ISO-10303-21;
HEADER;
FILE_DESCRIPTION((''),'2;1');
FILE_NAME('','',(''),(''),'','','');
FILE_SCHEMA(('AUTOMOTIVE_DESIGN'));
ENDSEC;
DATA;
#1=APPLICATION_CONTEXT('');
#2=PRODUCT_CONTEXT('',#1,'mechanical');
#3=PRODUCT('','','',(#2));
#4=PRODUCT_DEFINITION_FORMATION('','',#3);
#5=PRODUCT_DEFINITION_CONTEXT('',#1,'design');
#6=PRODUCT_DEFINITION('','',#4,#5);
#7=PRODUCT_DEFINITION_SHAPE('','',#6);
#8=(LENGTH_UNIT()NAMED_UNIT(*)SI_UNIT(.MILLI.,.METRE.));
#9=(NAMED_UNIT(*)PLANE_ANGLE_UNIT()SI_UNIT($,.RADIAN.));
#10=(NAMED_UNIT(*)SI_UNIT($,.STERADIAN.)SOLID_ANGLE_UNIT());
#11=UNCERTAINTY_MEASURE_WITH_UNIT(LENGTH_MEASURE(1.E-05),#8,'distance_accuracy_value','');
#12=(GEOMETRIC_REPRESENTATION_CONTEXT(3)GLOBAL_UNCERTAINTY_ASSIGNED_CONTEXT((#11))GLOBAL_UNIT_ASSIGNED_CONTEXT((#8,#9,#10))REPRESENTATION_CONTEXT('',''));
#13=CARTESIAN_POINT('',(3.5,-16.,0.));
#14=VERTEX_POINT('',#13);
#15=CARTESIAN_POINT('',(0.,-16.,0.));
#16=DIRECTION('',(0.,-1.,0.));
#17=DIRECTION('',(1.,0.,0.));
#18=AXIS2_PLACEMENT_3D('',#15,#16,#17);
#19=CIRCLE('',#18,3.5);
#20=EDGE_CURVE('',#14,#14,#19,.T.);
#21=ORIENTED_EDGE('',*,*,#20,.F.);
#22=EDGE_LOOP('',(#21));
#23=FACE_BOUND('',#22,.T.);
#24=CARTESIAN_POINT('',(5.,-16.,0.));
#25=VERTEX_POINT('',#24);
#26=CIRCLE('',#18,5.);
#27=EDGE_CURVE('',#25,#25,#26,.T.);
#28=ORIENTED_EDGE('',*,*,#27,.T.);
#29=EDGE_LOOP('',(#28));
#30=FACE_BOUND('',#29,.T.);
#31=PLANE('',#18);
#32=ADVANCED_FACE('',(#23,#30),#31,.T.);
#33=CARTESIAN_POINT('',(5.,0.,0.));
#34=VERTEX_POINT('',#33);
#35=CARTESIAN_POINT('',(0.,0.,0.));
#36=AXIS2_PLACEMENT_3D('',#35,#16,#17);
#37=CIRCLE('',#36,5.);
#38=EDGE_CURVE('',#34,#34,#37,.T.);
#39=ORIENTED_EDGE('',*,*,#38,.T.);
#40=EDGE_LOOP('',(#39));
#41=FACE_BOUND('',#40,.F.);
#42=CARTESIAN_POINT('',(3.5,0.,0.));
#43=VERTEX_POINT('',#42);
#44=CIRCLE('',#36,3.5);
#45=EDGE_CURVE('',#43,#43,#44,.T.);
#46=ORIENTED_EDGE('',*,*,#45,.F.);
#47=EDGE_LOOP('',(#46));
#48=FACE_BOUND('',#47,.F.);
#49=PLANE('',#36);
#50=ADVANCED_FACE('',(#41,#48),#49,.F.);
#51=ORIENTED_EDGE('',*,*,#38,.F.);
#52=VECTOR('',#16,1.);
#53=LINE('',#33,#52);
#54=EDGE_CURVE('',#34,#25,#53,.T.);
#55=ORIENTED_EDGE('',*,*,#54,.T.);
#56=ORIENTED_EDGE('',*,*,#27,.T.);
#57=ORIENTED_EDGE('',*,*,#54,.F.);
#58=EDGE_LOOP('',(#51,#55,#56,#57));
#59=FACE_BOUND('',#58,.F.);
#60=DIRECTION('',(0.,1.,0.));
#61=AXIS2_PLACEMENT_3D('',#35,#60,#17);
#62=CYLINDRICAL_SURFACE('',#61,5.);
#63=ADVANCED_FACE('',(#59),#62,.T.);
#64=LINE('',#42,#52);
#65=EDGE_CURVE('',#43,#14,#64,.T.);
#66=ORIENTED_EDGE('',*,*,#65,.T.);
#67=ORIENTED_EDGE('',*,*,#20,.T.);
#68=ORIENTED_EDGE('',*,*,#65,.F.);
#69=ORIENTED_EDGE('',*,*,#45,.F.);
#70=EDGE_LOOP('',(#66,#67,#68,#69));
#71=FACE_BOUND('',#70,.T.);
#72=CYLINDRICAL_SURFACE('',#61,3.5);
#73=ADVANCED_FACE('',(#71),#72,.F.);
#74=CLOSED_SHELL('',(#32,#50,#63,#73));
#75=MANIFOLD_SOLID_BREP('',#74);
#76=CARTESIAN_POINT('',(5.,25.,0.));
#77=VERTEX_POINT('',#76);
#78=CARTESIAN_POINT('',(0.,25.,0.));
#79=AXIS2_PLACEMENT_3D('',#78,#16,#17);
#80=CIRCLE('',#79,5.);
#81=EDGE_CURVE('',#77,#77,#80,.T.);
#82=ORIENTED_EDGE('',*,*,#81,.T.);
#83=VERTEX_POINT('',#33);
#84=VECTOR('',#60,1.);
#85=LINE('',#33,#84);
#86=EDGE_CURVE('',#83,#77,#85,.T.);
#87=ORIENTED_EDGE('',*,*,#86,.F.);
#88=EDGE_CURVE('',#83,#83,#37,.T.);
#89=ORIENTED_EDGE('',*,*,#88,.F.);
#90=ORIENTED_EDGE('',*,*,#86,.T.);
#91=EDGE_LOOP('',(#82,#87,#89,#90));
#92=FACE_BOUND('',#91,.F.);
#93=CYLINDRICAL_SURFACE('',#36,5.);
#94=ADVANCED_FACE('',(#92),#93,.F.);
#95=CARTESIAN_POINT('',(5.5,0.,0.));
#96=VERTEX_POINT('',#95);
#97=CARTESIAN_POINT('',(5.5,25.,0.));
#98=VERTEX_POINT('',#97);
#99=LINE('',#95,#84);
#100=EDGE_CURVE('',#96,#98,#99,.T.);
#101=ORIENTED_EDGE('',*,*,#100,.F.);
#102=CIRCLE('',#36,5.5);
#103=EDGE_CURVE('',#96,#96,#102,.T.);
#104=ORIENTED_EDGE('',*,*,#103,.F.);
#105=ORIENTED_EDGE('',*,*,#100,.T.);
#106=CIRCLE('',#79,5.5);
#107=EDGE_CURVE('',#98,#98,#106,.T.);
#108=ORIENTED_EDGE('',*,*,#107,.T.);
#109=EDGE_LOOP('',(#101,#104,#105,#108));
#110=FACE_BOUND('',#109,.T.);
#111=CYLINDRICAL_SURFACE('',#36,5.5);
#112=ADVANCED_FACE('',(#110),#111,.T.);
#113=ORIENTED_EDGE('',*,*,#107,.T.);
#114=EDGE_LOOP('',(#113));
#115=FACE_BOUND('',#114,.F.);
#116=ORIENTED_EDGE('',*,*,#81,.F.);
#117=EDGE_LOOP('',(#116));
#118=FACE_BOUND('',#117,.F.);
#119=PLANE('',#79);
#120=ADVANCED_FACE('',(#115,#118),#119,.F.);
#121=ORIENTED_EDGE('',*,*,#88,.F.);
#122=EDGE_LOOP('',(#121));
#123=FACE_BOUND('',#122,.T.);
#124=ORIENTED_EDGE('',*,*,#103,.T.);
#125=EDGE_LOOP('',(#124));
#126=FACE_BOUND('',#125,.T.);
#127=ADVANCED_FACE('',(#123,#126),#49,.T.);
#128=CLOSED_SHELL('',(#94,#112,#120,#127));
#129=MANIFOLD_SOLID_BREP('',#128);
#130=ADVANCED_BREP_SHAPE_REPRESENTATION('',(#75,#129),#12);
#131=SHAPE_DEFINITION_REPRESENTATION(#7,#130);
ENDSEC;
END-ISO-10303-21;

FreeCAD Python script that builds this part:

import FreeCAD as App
import Part
import Sketcher

V = App.Vector

doc = App.newDocument("Part")
params = doc.addObject("Spreadsheet::Sheet", "Params")
for row, (alias, value) in enumerate([
    ("sketch1_diameter", "10 mm"),
    ("sketch1_diameter2", "7 mm"),
    ("pad1_length", "16 mm"),
    ("sketch2_diameter", "11 mm"),
    ("sketch2_diameter2", "10 mm"),
    ("pad2_length", "25 mm"),
], start=1):
    params.set(f"A{row}", alias)
    params.set(f"B{row}", "=" + value)
    params.setAlias(f"B{row}", alias)

body = doc.addObject("PartDesign::Body", "Body")

# Sketch on XZ plane
sketch1 = body.newObject("Sketcher::SketchObject", "Sketch")
sketch1.AttachmentSupport = (doc.getObject("XZ_Plane"), [""])
sketch1.MapMode = "FlatFace"
sketch1.addGeometry([
    Part.Circle(V(0, 0, 0), V(0, 0, 1), 5),
    Part.Circle(V(0, 0, 0), V(0, 0, 1), 3.5),
], False)
sketch1.addConstraint([
    Sketcher.Constraint("Coincident", 0, 3, -1, 1),
    Sketcher.Constraint("Coincident", 1, 3, -1, 1),
    Sketcher.Constraint("Diameter", 0, 10.0),
    Sketcher.Constraint("Diameter", 1, 7.0),
])
sketch1.setExpression("Constraints[2]", "Params.sketch1_diameter")
sketch1.setExpression("Constraints[3]", "Params.sketch1_diameter2")
pad1 = body.newObject("PartDesign::Pad", "Pad")
pad1.Profile = sketch1
pad1.setExpression("Length", "Params.pad1_length")
body2 = doc.addObject("PartDesign::Body", "Body001")

# Sketch on XZ plane
sketch2 = body2.newObject("Sketcher::SketchObject", "Sketch001")
sketch2.AttachmentSupport = (doc.getObject("XZ_Plane001"), [""])
sketch2.MapMode = "FlatFace"
sketch2.addGeometry([
    Part.Circle(V(0, 0, 0), V(0, 0, 1), 6),
    Part.Circle(V(0, 0, 0), V(0, 0, 1), 5),
], False)
sketch2.addConstraint([
    Sketcher.Constraint("Coincident", 0, 3, -1, 1),
    Sketcher.Constraint("Coincident", 1, 3, -1, 1),
    Sketcher.Constraint("Diameter", 0, 11.0),
    Sketcher.Constraint("Diameter", 1, 10.0),
])
sketch2.setExpression("Constraints[2]", "Params.sketch2_diameter")
sketch2.setExpression("Constraints[3]", "Params.sketch2_diameter2")
pad2 = body2.newObject("PartDesign::Pad", "Pad001")
pad2.Profile = sketch2
pad2.setExpression("Length", "Params.pad2_length")
pad2.Reversed = True

doc.recompute()
